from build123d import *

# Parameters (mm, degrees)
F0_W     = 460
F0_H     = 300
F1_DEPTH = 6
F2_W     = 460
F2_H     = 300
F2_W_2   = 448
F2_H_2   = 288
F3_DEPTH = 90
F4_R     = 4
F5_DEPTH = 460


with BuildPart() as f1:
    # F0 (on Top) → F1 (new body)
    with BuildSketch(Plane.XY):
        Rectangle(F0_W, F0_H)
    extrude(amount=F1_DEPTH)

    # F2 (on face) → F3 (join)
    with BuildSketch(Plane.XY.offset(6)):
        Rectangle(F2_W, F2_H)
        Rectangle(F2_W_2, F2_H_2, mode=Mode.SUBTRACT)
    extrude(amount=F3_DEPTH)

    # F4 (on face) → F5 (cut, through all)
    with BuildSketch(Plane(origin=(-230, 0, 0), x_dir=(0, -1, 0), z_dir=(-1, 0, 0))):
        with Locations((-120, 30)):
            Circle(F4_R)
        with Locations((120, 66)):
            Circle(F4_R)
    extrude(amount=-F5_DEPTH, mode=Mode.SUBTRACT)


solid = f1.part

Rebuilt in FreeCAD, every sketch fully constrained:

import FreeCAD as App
import Part
import Sketcher
from FreeCAD import Vector
Q = App.Units.Quantity

doc = App.newDocument("Part")
params = doc.addObject("Spreadsheet::Sheet", "Params")
for row, (alias, value) in enumerate([
    ("sketch1_width", "460 mm"),
    ("sketch1_height", "300 mm"),
    ("pad1_length", "6 mm"),
    ("sketch2_width", "460 mm"),
    ("sketch2_width2", "448 mm"),
    ("sketch2_height", "300 mm"),
    ("sketch2_height2", "288 mm"),
    ("pad2_length", "90 mm"),
    ("sketch3_diameter", "8 mm"),
], start=1):
    params.set(f"A{row}", alias)
    params.set(f"B{row}", "=" + value)
    params.setAlias(f"B{row}", alias)

body = doc.addObject("PartDesign::Body", "Body")

# Sketch on XY plane
sketch1 = body.newObject("Sketcher::SketchObject", "Sketch")
sketch1.AttachmentSupport = (doc.getObject("XY_Plane"), [""])
sketch1.MapMode = "FlatFace"
sketch1.addGeometry(Part.LineSegment(Vector(-230, 150, 0), Vector(-230, -150, 0)), False)
sketch1.addGeometry(Part.LineSegment(Vector(-230, -150, 0), Vector(230, -150, 0)), False)
sketch1.addGeometry(Part.LineSegment(Vector(230, -150, 0), Vector(230, 150, 0)), False)
sketch1.addGeometry(Part.LineSegment(Vector(230, 150, 0), Vector(-230, 150, 0)), False)
sketch1.addConstraint(Sketcher.Constraint("Coincident", 0, 2, 1, 1))
sketch1.addConstraint(Sketcher.Constraint("Coincident", 1, 2, 2, 1))
sketch1.addConstraint(Sketcher.Constraint("Coincident", 2, 2, 3, 1))
sketch1.addConstraint(Sketcher.Constraint("Coincident", 3, 2, 0, 1))
sketch1.addConstraint(Sketcher.Constraint("Vertical", 0))
sketch1.addConstraint(Sketcher.Constraint("Horizontal", 1))
sketch1.addConstraint(Sketcher.Constraint("Vertical", 2))
sketch1.addConstraint(Sketcher.Constraint("Horizontal", 3))
sketch1.addConstraint(Sketcher.Constraint("Symmetric", 0, 2, 2, 2, -1, 1))
sketch1.addConstraint(Sketcher.Constraint("DistanceX", 1, 1, 1, 2, Q("460 mm")))
sketch1.addConstraint(Sketcher.Constraint("DistanceY", 0, 2, 0, 1, Q("300 mm")))
sketch1.setExpression("Constraints[9]", "Params.sketch1_width")
sketch1.setExpression("Constraints[10]", "Params.sketch1_height")
pad1 = body.newObject("PartDesign::Pad", "Pad")
pad1.Profile = sketch1
pad1.setExpression("Length", "Params.pad1_length")

# Sketch on XY plane
sketch2 = body.newObject("Sketcher::SketchObject", "Sketch001")
sketch2.AttachmentSupport = (doc.getObject("XY_Plane"), [""])
sketch2.MapMode = "FlatFace"
sketch2.AttachmentOffset = App.Placement(Vector(0, 0, 6), App.Rotation())
sketch2.addGeometry(Part.LineSegment(Vector(-230, 150, 0), Vector(-230, -150, 0)), False)
sketch2.addGeometry(Part.LineSegment(Vector(-230, -150, 0), Vector(230, -150, 0)), False)
sketch2.addGeometry(Part.LineSegment(Vector(230, -150, 0), Vector(230, 150, 0)), False)
sketch2.addGeometry(Part.LineSegment(Vector(230, 150, 0), Vector(-230, 150, 0)), False)
sketch2.addGeometry(Part.LineSegment(Vector(224, -144, 0), Vector(-224, -144, 0)), False)
sketch2.addGeometry(Part.LineSegment(Vector(-224, -144, 0), Vector(-224, 144, 0)), False)
sketch2.addGeometry(Part.LineSegment(Vector(-224, 144, 0), Vector(224, 144, 0)), False)
sketch2.addGeometry(Part.LineSegment(Vector(224, 144, 0), Vector(224, -144, 0)), False)
sketch2.addConstraint(Sketcher.Constraint("Coincident", 0, 2, 1, 1))
sketch2.addConstraint(Sketcher.Constraint("Coincident", 1, 2, 2, 1))
sketch2.addConstraint(Sketcher.Constraint("Coincident", 2, 2, 3, 1))
sketch2.addConstraint(Sketcher.Constraint("Coincident", 3, 2, 0, 1))
sketch2.addConstraint(Sketcher.Constraint("Coincident", 4, 2, 5, 1))
sketch2.addConstraint(Sketcher.Constraint("Coincident", 5, 2, 6, 1))
sketch2.addConstraint(Sketcher.Constraint("Coincident", 6, 2, 7, 1))
sketch2.addConstraint(Sketcher.Constraint("Coincident", 7, 2, 4, 1))
sketch2.addConstraint(Sketcher.Constraint("Vertical", 0))
sketch2.addConstraint(Sketcher.Constraint("Horizontal", 1))
sketch2.addConstraint(Sketcher.Constraint("Vertical", 2))
sketch2.addConstraint(Sketcher.Constraint("Horizontal", 3))
sketch2.addConstraint(Sketcher.Constraint("Horizontal", 4))
sketch2.addConstraint(Sketcher.Constraint("Vertical", 5))
sketch2.addConstraint(Sketcher.Constraint("Horizontal", 6))
sketch2.addConstraint(Sketcher.Constraint("Vertical", 7))
sketch2.addConstraint(Sketcher.Constraint("Symmetric", 0, 2, 2, 2, -1, 1))
sketch2.addConstraint(Sketcher.Constraint("Symmetric", 4, 2, 6, 2, -1, 1))
sketch2.addConstraint(Sketcher.Constraint("DistanceX", 1, 1, 1, 2, Q("460 mm")))
sketch2.addConstraint(Sketcher.Constraint("DistanceX", 4, 2, 4, 1, Q("448 mm")))
sketch2.addConstraint(Sketcher.Constraint("DistanceY", 0, 2, 0, 1, Q("300 mm")))
sketch2.addConstraint(Sketcher.Constraint("DistanceY", 5, 1, 5, 2, Q("288 mm")))
sketch2.setExpression("Constraints[18]", "Params.sketch2_width")
sketch2.setExpression("Constraints[19]", "Params.sketch2_width2")
sketch2.setExpression("Constraints[20]", "Params.sketch2_height")
sketch2.setExpression("Constraints[21]", "Params.sketch2_height2")
pad2 = body.newObject("PartDesign::Pad", "Pad001")
pad2.Profile = sketch2
pad2.setExpression("Length", "Params.pad2_length")

# Sketch on YZ plane
sketch3 = body.newObject("Sketcher::SketchObject", "Sketch002")
sketch3.AttachmentSupport = (doc.getObject("YZ_Plane"), [""])
sketch3.MapMode = "FlatFace"
sketch3.AttachmentOffset = App.Placement(Vector(0, 0, -230), App.Rotation())
sketch3.addGeometry(Part.Circle(Vector(120, 30, 0), Vector(0, 0, 1), 4), False)
sketch3.addGeometry(Part.Circle(Vector(-120, 66, 0), Vector(0, 0, 1), 4), False)
sketch3.addConstraint(Sketcher.Constraint("Equal", 0, 1))
sketch3.addConstraint(Sketcher.Constraint("Diameter", 0, Q("8 mm")))
sketch3.addConstraint(Sketcher.Constraint("DistanceX", -1, 1, 0, 3, Q("120 mm")))
sketch3.addConstraint(Sketcher.Constraint("DistanceY", -1, 1, 0, 3, Q("30 mm")))
sketch3.addConstraint(Sketcher.Constraint("DistanceX", 1, 3, -1, 1, Q("120 mm")))
sketch3.addConstraint(Sketcher.Constraint("DistanceY", -1, 1, 1, 3, Q("66 mm")))
sketch3.setExpression("Constraints[1]", "Params.sketch3_diameter")
pocket1 = body.newObject("PartDesign::Pocket", "Pocket")
pocket1.Profile = sketch3
pocket1.Type = "ThroughAll"
pocket1.Reversed = True

doc.recompute()
